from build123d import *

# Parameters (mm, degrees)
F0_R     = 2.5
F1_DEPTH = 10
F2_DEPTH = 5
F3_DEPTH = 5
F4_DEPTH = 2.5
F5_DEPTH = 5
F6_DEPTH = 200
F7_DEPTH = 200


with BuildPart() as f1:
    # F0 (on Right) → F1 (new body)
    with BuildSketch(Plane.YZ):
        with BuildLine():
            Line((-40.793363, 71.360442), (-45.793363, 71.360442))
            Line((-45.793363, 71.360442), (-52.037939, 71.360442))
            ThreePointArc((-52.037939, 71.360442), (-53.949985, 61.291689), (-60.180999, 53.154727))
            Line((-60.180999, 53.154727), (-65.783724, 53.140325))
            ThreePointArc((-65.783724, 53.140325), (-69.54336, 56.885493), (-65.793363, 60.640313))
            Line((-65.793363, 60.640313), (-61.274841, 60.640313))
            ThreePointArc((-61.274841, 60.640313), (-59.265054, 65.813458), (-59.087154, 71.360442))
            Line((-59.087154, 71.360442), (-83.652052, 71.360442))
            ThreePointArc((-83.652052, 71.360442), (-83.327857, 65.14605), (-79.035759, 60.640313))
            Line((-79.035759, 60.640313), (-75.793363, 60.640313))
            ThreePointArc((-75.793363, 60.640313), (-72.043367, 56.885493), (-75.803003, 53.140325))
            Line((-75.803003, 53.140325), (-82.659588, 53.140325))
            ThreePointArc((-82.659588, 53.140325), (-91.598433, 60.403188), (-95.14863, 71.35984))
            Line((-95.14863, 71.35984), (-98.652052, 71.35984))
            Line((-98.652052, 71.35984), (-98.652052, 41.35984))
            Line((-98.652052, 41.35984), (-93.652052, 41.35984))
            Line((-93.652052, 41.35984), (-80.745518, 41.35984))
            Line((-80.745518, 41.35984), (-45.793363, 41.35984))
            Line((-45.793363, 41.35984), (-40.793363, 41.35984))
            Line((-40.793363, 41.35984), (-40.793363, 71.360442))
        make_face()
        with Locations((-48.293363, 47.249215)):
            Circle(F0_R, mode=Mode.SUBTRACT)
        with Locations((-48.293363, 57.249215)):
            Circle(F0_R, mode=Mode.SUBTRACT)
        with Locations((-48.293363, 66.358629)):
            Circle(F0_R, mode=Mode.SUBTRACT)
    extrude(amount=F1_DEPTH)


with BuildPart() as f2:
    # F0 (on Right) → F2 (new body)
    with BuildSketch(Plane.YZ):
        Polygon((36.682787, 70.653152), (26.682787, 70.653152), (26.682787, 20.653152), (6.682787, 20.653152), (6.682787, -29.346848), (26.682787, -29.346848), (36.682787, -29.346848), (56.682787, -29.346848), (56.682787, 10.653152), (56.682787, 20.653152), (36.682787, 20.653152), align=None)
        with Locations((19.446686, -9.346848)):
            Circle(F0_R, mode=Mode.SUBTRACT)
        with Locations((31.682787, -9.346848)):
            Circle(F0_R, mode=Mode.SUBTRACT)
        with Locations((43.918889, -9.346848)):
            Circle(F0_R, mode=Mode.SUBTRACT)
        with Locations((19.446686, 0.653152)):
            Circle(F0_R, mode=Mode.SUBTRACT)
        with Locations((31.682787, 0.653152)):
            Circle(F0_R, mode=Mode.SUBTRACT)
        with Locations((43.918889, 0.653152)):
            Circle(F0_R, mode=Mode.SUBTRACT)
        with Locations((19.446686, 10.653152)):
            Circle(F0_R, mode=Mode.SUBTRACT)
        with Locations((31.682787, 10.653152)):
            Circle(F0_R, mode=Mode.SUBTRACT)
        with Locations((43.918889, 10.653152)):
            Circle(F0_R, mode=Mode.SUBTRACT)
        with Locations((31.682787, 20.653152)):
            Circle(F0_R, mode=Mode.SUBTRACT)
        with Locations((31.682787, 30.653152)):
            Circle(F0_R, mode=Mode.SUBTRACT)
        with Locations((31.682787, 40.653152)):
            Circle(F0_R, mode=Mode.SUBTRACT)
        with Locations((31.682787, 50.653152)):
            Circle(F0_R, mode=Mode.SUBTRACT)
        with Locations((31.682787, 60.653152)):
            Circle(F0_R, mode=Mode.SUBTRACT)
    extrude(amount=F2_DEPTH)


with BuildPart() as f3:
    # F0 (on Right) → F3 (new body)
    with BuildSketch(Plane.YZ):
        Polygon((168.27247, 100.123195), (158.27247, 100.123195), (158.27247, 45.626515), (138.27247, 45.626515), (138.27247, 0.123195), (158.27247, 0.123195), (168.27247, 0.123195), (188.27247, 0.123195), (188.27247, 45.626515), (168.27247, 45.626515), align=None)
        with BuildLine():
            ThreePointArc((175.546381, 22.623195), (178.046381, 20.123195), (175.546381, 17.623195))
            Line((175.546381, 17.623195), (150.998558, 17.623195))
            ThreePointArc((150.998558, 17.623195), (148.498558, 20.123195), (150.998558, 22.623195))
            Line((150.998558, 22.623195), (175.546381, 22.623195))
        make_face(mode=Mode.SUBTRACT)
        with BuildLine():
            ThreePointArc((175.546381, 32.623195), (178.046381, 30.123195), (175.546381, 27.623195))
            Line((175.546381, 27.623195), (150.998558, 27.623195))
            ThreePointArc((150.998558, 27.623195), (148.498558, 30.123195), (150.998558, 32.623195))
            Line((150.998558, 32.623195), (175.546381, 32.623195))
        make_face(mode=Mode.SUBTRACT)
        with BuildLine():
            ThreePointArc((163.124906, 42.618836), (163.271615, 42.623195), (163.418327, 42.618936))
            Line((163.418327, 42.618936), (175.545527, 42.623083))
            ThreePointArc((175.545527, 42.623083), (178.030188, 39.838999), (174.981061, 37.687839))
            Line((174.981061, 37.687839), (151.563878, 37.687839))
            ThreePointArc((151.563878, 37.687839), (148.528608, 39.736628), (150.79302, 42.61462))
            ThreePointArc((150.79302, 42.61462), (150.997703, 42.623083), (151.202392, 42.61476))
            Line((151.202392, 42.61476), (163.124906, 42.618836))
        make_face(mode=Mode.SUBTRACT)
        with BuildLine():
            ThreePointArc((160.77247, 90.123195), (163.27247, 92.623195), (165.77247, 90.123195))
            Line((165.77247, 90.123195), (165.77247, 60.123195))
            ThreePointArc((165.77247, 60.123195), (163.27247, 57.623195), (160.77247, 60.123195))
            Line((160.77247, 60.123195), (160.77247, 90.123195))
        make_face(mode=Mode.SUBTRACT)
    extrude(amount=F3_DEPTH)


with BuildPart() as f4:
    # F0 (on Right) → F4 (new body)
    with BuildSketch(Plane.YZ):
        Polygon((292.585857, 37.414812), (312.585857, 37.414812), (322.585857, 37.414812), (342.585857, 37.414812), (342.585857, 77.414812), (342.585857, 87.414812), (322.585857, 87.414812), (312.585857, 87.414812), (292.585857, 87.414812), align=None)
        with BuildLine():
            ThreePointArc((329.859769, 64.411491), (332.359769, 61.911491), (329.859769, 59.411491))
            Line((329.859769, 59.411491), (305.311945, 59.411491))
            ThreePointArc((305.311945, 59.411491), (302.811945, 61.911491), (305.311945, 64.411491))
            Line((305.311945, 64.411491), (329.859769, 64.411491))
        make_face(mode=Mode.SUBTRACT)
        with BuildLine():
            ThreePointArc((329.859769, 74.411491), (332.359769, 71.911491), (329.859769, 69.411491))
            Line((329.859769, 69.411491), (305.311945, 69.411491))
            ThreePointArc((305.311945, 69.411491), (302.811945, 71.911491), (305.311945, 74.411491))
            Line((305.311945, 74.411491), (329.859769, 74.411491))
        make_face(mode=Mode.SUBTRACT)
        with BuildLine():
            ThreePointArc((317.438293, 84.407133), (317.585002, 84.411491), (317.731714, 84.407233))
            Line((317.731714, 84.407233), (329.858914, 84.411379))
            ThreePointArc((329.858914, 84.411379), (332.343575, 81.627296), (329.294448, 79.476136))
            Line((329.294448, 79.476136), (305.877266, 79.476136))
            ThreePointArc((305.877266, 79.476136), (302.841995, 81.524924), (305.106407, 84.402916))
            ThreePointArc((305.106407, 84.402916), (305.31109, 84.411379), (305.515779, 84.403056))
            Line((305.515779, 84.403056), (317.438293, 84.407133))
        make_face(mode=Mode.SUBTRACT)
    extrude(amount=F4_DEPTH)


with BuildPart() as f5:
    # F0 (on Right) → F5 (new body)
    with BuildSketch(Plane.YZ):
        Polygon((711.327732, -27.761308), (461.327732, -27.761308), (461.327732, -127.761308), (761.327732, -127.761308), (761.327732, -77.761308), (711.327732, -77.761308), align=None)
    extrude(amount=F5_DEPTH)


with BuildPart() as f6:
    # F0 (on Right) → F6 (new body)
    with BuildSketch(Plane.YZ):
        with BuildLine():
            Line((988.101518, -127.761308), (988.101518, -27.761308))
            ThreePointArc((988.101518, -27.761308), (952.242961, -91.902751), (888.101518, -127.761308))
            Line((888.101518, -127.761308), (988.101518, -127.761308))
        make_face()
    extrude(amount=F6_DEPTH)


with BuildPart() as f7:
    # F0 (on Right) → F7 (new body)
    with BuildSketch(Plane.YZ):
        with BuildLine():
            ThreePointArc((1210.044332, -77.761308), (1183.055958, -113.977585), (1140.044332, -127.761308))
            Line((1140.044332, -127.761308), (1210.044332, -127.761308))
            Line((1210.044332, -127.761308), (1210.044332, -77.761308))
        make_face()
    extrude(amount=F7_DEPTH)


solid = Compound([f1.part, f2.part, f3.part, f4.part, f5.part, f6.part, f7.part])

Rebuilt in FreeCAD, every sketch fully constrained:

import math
import FreeCAD as App
import Part
import Sketcher

doc = App.newDocument("Part")
params = doc.addObject("Spreadsheet::Sheet", "Params")
for row, (alias, value) in enumerate([
    ("sketch1_diameter", "5 mm"),
    ("sketch1_height", "30 mm"),
    ("sketch1_radius", "3.75 mm"),
    ("pad1_length", "10 mm"),
    ("sketch2_diameter", "5 mm"),
    ("sketch2_width", "10 mm"),
    ("sketch2_width2", "20 mm"),
    ("pad2_length", "5 mm"),
    ("sketch3_radius", "2.5 mm"),
    ("sketch3_width", "10 mm"),
    ("sketch3_width2", "20 mm"),
    ("sketch3_height", "30 mm"),
    ("pad3_length", "5 mm"),
    ("sketch4_radius", "2.5 mm"),
    ("sketch4_width", "50 mm"),
    ("pad4_length", "2.5 mm"),
    ("sketch5_width", "250 mm"),
    ("sketch5_width2", "300 mm"),
    ("pad5_length", "5 mm"),
    ("sketch6_width", "100 mm"),
    ("pad6_length", "200 mm"),
    ("sketch7_radius", "74 mm"),
    ("sketch7_width", "70 mm"),
    ("pad7_length", "200 mm"),
], start=1):
    params.set(f"A{row}", alias)
    params.set(f"B{row}", "=" + value)
    params.setAlias(f"B{row}", alias)

body = doc.addObject("PartDesign::Body", "Body")

sketch1 = body.newObject("Sketcher::SketchObject", "Sketch")
sketch1.AttachmentSupport = (doc.getObject("YZ_Plane"), [""])
sketch1.MapMode = "FlatFace"
sketch1.addGeometry([
    Part.LineSegment(App.Vector(-40.793363, 71.360442, 0), App.Vector(-52.037939, 71.360442, 0)),
    Part.ArcOfCircle(Part.Circle(App.Vector(-74.21533, 70.355982, 0), App.Vector(0, 0, 1), 22.200127), math.radians(-50.78934), math.radians(2.593273)),
    Part.LineSegment(App.Vector(-60.180999, 53.154727, 0), App.Vector(-65.783724, 53.140325, 0)),
    Part.ArcOfCircle(Part.Circle(App.Vector(-65.793363, 56.890313, 0), App.Vector(0, 0, 1), 3.75), math.radians(90.000001), math.radians(270.147272)),
    Part.LineSegment(App.Vector(-65.793363, 60.640313, 0), App.Vector(-61.274841, 60.640313, 0)),
    Part.ArcOfCircle(Part.Circle(App.Vector(-75.406466, 69.107482, 0), App.Vector(0, 0, 1), 16.474094), math.radians(-30.928548), math.radians(7.860275)),
    Part.LineSegment(App.Vector(-59.087154, 71.360442, 0), App.Vector(-83.652052, 71.360442, 0)),
    Part.ArcOfCircle(Part.Circle(App.Vector(-75.095207, 68.691187, 0), App.Vector(0, 0, 1), 8.96351), math.radians(162.675008), math.radians(243.920267)),
    Part.LineSegment(App.Vector(-79.035759, 60.640313, 0), App.Vector(-75.793363, 60.640313, 0)),
    Part.ArcOfCircle(Part.Circle(App.Vector(-75.793364, 56.890313, 0), App.Vector(0, 0, 1), 3.75), math.radians(-90.147272), math.radians(89.999983)),
    Part.LineSegment(App.Vector(-75.803003, 53.140325, 0), App.Vector(-82.659588, 53.140325, 0)),
    Part.ArcOfCircle(Part.Circle(App.Vector(-74.850806, 71.883286, 0), App.Vector(0, 0, 1), 20.304572), math.radians(-178.522768), math.radians(-112.61782)),
    Part.LineSegment(App.Vector(-95.14863, 71.35984, 0), App.Vector(-98.652052, 71.35984, 0)),
    Part.LineSegment(App.Vector(-98.652052, 71.35984, 0), App.Vector(-98.652052, 41.35984, 0)),
    Part.LineSegment(App.Vector(-98.652052, 41.35984, 0), App.Vector(-40.793363, 41.35984, 0)),
    Part.LineSegment(App.Vector(-40.793363, 41.35984, 0), App.Vector(-40.793363, 71.360442, 0)),
    Part.Circle(App.Vector(-48.293363, 47.249215, 0), App.Vector(0, 0, 1), 2.5),
    Part.Circle(App.Vector(-48.293363, 57.249215, 0), App.Vector(0, 0, 1), 2.5),
    Part.Circle(App.Vector(-48.293363, 66.358629, 0), App.Vector(0, 0, 1), 2.5),
], False)
sketch1.addConstraint([
    Sketcher.Constraint("Coincident", 0, 2, 1, 2),
    Sketcher.Constraint("Coincident", 1, 1, 2, 1),
    Sketcher.Constraint("Tangent", 2, 2, 3, 2),
    Sketcher.Constraint("Tangent", 3, 1, 4, 1),
    Sketcher.Constraint("Coincident", 4, 2, 5, 1),
    Sketcher.Constraint("Coincident", 5, 2, 6, 1),
    Sketcher.Constraint("Coincident", 6, 2, 7, 1),
    Sketcher.Constraint("Coincident", 7, 2, 8, 1),
    Sketcher.Constraint("Tangent", 8, 2, 9, 2),
    Sketcher.Constraint("Coincident", 9, 1, 10, 1),
    Sketcher.Constraint("Coincident", 10, 2, 11, 2),
    Sketcher.Constraint("Coincident", 11, 1, 12, 1),
    Sketcher.Constraint("Coincident", 12, 2, 13, 1),
    Sketcher.Constraint("Coincident", 13, 2, 14, 1),
    Sketcher.Constraint("Coincident", 14, 2, 15, 1),
    Sketcher.Constraint("Coincident", 15, 2, 0, 1),
    Sketcher.Constraint("Horizontal", 0),
    Sketcher.Constraint("Horizontal", 4),
    Sketcher.Constraint("Horizontal", 6),
    Sketcher.Constraint("Horizontal", 8),
    Sketcher.Constraint("Horizontal", 10),
    Sketcher.Constraint("Horizontal", 12),
    Sketcher.Constraint("Vertical", 13),
    Sketcher.Constraint("Horizontal", 14),
    Sketcher.Constraint("Vertical", 15),
    Sketcher.Constraint("Equal", 3, 9),
    Sketcher.Constraint("Equal", 16, 17),
    Sketcher.Constraint("Equal", 17, 18),
    Sketcher.Constraint("Horizontal", 3, 3, 9, 3),
    Sketcher.Constraint("Horizontal", 0, 2, 5, 2),
    Sketcher.Constraint("Vertical", 16, 3, 17, 3),
    Sketcher.Constraint("Vertical", 17, 3, 18, 3),
    Sketcher.Constraint("Diameter", 16, 5.0),
    Sketcher.Constraint("DistanceY", 13, 2, 13, 1, 30.0),
    Sketcher.Constraint("Radius", 3, 3.75),
    Sketcher.Constraint("DistanceX", 9, 3, 3, 3, 10.000001),
    Sketcher.Constraint("DistanceY", 16, 3, 17, 3, 10.0),
    Sketcher.Constraint("DistanceX", 12, 2, 6, 2, 15.0),
    Sketcher.Constraint("DistanceX", 3, 3, 16, 3, 17.5),
    Sketcher.Constraint("DistanceX", 16, 3, 14, 2, 7.5),
    Sketcher.Constraint("Radius", 7, 8.96351),
    Sketcher.Constraint("DistanceX", 1, 1, -1, 1, 60.180999),
    Sketcher.Constraint("Radius", 1, 22.200127),
    Sketcher.Constraint("Radius", 5, 16.474094),
    Sketcher.Constraint("Radius", 11, 20.304572),
    Sketcher.Constraint("DistanceX", 4, 1, 4, 2, 4.518522),
    Sketcher.Constraint("DistanceX", 14, 1, 14, 2, 57.858689),
    Sketcher.Constraint("DistanceY", 5, 3, 1, 3, 1.2485),
    Sketcher.Constraint("DistanceX", 9, 3, 5, 3, 0.386899),
    Sketcher.Constraint("DistanceX", 7, 3, 11, 3, 0.244401),
    Sketcher.Constraint("DistanceY", 7, 3, 11, 3, 3.192099),
    Sketcher.Constraint("DistanceY", 2, 2, 1, 1, 0.014402),
    Sketcher.Constraint("DistanceY", 11, 1, 6, 2, 0.000602),
    Sketcher.Constraint("DistanceX", 0, 2, 0, 1, 11.244576),
    Sketcher.Constraint("DistanceX", 6, 2, 6, 1, 24.564898),
    Sketcher.Constraint("DistanceX", 8, 1, 8, 2, 3.242396),
    Sketcher.Constraint("DistanceX", 10, 2, 10, 1, 6.856585),
    Sketcher.Constraint("DistanceY", -1, 1, 1, 3, 70.355982),
    Sketcher.Constraint("DistanceY", -1, 1, 18, 3, 66.358629),
    Sketcher.Constraint("DistanceY", 16, 3, 7, 3, 21.441972),
])
sketch1.setExpression("Constraints[32]", "Params.sketch1_diameter")
sketch1.setExpression("Constraints[33]", "Params.sketch1_height")
sketch1.setExpression("Constraints[34]", "Params.sketch1_radius")
pad1 = body.newObject("PartDesign::Pad", "Pad")
pad1.Profile = sketch1
pad1.setExpression("Length", "Params.pad1_length")
body2 = doc.addObject("PartDesign::Body", "Body001")

sketch2 = body2.newObject("Sketcher::SketchObject", "Sketch001")
sketch2.AttachmentSupport = (doc.getObject("YZ_Plane001"), [""])
sketch2.MapMode = "FlatFace"
sketch2.addGeometry([
    Part.LineSegment(App.Vector(36.682787, 70.653152, 0), App.Vector(26.682787, 70.653152, 0)),
    Part.LineSegment(App.Vector(26.682787, 70.653152, 0), App.Vector(26.682787, 20.653152, 0)),
    Part.LineSegment(App.Vector(26.682787, 20.653152, 0), App.Vector(6.682787, 20.653152, 0)),
    Part.LineSegment(App.Vector(6.682787, 20.653152, 0), App.Vector(6.682787, -29.346848, 0)),
    Part.LineSegment(App.Vector(6.682787, -29.346848, 0), App.Vector(56.682787, -29.346848, 0)),
    Part.LineSegment(App.Vector(56.682787, -29.346848, 0), App.Vector(56.682787, 20.653152, 0)),
    Part.LineSegment(App.Vector(56.682787, 20.653152, 0), App.Vector(36.682787, 20.653152, 0)),
    Part.LineSegment(App.Vector(36.682787, 20.653152, 0), App.Vector(36.682787, 70.653152, 0)),
    Part.Circle(App.Vector(19.446686, -9.346848, 0), App.Vector(0, 0, 1), 2.5),
    Part.Circle(App.Vector(19.446686, 0.653152, 0), App.Vector(0, 0, 1), 2.5),
    Part.Circle(App.Vector(31.682787, -9.346848, 0), App.Vector(0, 0, 1), 2.5),
    Part.Circle(App.Vector(31.682787, 0.653152, 0), App.Vector(0, 0, 1), 2.5),
    Part.Circle(App.Vector(19.446686, 10.653152, 0), App.Vector(0, 0, 1), 2.5),
    Part.Circle(App.Vector(31.682787, 10.653152, 0), App.Vector(0, 0, 1), 2.5),
    Part.Circle(App.Vector(31.682787, 20.653152, 0), App.Vector(0, 0, 1), 2.5),
    Part.Circle(App.Vector(43.918889, -9.346848, 0), App.Vector(0, 0, 1), 2.5),
    Part.Circle(App.Vector(43.918889, 0.653152, 0), App.Vector(0, 0, 1), 2.5),
    Part.Circle(App.Vector(43.918889, 10.653152, 0), App.Vector(0, 0, 1), 2.5),
    Part.Circle(App.Vector(31.682787, 30.653152, 0), App.Vector(0, 0, 1), 2.5),
    Part.Circle(App.Vector(31.682787, 40.653152, 0), App.Vector(0, 0, 1), 2.5),
    Part.Circle(App.Vector(31.682787, 50.653152, 0), App.Vector(0, 0, 1), 2.5),
    Part.Circle(App.Vector(31.682787, 60.653152, 0), App.Vector(0, 0, 1), 2.5),
], False)
sketch2.addConstraint([
    Sketcher.Constraint("Coincident", 0, 2, 1, 1),
    Sketcher.Constraint("Coincident", 1, 2, 2, 1),
    Sketcher.Constraint("Coincident", 2, 2, 3, 1),
    Sketcher.Constraint("Coincident", 3, 2, 4, 1),
    Sketcher.Constraint("Coincident", 4, 2, 5, 1),
    Sketcher.Constraint("Coincident", 5, 2, 6, 1),
    Sketcher.Constraint("Coincident", 6, 2, 7, 1),
    Sketcher.Constraint("Coincident", 7, 2, 0, 1),
    Sketcher.Constraint("Horizontal", 0),
    Sketcher.Constraint("Vertical", 1),
    Sketcher.Constraint("Horizontal", 2),
    Sketcher.Constraint("Vertical", 3),
    Sketcher.Constraint("Horizontal", 4),
    Sketcher.Constraint("Vertical", 5),
    Sketcher.Constraint("Horizontal", 6),
    Sketcher.Constraint("Vertical", 7),
    Sketcher.Constraint("Equal", 8, 9),
    Sketcher.Constraint("Equal", 9, 10),
    Sketcher.Constraint("Equal", 10, 11),
    Sketcher.Constraint("Equal", 11, 12),
    Sketcher.Constraint("Equal", 12, 13),
    Sketcher.Constraint("Equal", 13, 14),
    Sketcher.Constraint("Equal", 14, 15),
    Sketcher.Constraint("Equal", 15, 16),
    Sketcher.Constraint("Equal", 16, 17),
    Sketcher.Constraint("Equal", 17, 18),
    Sketcher.Constraint("Equal", 18, 19),
    Sketcher.Constraint("Equal", 19, 20),
    Sketcher.Constraint("Equal", 20, 21),
    Sketcher.Constraint("Horizontal", 8, 3, 10, 3),
    Sketcher.Constraint("Horizontal", 9, 3, 11, 3),
    Sketcher.Constraint("Horizontal", 12, 3, 13, 3),
    Sketcher.Constraint("Horizontal", 10, 3, 15, 3),
    Sketcher.Constraint("Horizontal", 11, 3, 16, 3),
    Sketcher.Constraint("Horizontal", 13, 3, 17, 3),
    Sketcher.Constraint("Horizontal", 14, 3, 1, 2),
    Sketcher.Constraint("Horizontal", 2, 2, 5, 2),
    Sketcher.Constraint("Vertical", 8, 3, 9, 3),
    Sketcher.Constraint("Vertical", 10, 3, 11, 3),
    Sketcher.Constraint("Vertical", 9, 3, 12, 3),
    Sketcher.Constraint("Vertical", 11, 3, 13, 3),
    Sketcher.Constraint("Vertical", 13, 3, 14, 3),
    Sketcher.Constraint("Vertical", 15, 3, 16, 3),
    Sketcher.Constraint("Vertical", 16, 3, 17, 3),
    Sketcher.Constraint("Vertical", 14, 3, 18, 3),
    Sketcher.Constraint("Vertical", 18, 3, 19, 3),
    Sketcher.Constraint("Vertical", 19, 3, 20, 3),
    Sketcher.Constraint("Vertical", 20, 3, 21, 3),
    Sketcher.Constraint("Equal", 2, 6),
    Sketcher.Constraint("Equal", 4, 1),
    Sketcher.Constraint("Equal", 1, 3),
    Sketcher.Constraint("Diameter", 8, 5.0),
    Sketcher.Constraint("DistanceX", 0, 2, 0, 1, 10.0),
    Sketcher.Constraint("DistanceX", 2, 2, 2, 1, 20.0),
    Sketcher.Constraint("DistanceY", 8, 3, 9, 3, 10.0),
    Sketcher.Constraint("DistanceY", 9, 3, 12, 3, 10.0),
    Sketcher.Constraint("DistanceY", 13, 3, 14, 3, 10.0),
    Sketcher.Constraint("DistanceY", 14, 3, 18, 3, 10.0),
    Sketcher.Constraint("DistanceY", 18, 3, 19, 3, 10.0),
    Sketcher.Constraint("DistanceY", 19, 3, 20, 3, 10.0),
    Sketcher.Constraint("DistanceY", 20, 3, 21, 3, 10.0),
    Sketcher.Constraint("DistanceX", 0, 2, 21, 3, 5.0),
    Sketcher.Constraint("DistanceX", 8, 3, 10, 3, 12.236101),
    Sketcher.Constraint("DistanceX", 10, 3, 15, 3, 12.236102),
    Sketcher.Constraint("DistanceY", -1, 1, 9, 3, 0.653152),
    Sketcher.Constraint("DistanceX", -1, 1, 15, 3, 43.918889),
])
sketch2.setExpression("Constraints[51]", "Params.sketch2_diameter")
sketch2.setExpression("Constraints[52]", "Params.sketch2_width")
sketch2.setExpression("Constraints[53]", "Params.sketch2_width2")
pad2 = body2.newObject("PartDesign::Pad", "Pad001")
pad2.Profile = sketch2
pad2.setExpression("Length", "Params.pad2_length")
body3 = doc.addObject("PartDesign::Body", "Body002")

sketch3 = body3.newObject("Sketcher::SketchObject", "Sketch002")
sketch3.AttachmentSupport = (doc.getObject("YZ_Plane002"), [""])
sketch3.MapMode = "FlatFace"
sketch3.addGeometry([
    Part.LineSegment(App.Vector(168.27247, 100.123195, 0), App.Vector(158.27247, 100.123195, 0)),
    Part.LineSegment(App.Vector(158.27247, 100.123195, 0), App.Vector(158.27247, 45.626515, 0)),
    Part.LineSegment(App.Vector(158.27247, 45.626515, 0), App.Vector(138.27247, 45.626515, 0)),
    Part.LineSegment(App.Vector(138.27247, 45.626515, 0), App.Vector(138.27247, 0.123195, 0)),
    Part.LineSegment(App.Vector(138.27247, 0.123195, 0), App.Vector(188.27247, 0.123195, 0)),
    Part.LineSegment(App.Vector(188.27247, 0.123195, 0), App.Vector(188.27247, 45.626515, 0)),
    Part.LineSegment(App.Vector(188.27247, 45.626515, 0), App.Vector(168.27247, 45.626515, 0)),
    Part.LineSegment(App.Vector(168.27247, 45.626515, 0), App.Vector(168.27247, 100.123195, 0)),
    Part.LineSegment(App.Vector(150.998558, 22.623195, 0), App.Vector(175.546381, 22.623195, 0)),
    Part.ArcOfCircle(Part.Circle(App.Vector(175.546381, 20.123195, 0), App.Vector(0, 0, 1), 2.5), math.radians(-90), math.radians(90)),
    Part.LineSegment(App.Vector(175.546381, 17.623195, 0), App.Vector(150.998558, 17.623195, 0)),
    Part.ArcOfCircle(Part.Circle(App.Vector(150.998558, 20.123195, 0), App.Vector(0, 0, 1), 2.5), math.radians(90), math.radians(270)),
    Part.LineSegment(App.Vector(150.998558, 32.623195, 0), App.Vector(175.546381, 32.623195, 0)),
    Part.ArcOfCircle(Part.Circle(App.Vector(175.546381, 30.123195, 0), App.Vector(0, 0, 1), 2.5), math.radians(-90), math.radians(90)),
    Part.LineSegment(App.Vector(175.546381, 27.623195, 0), App.Vector(150.998558, 27.623195, 0)),
    Part.ArcOfCircle(Part.Circle(App.Vector(150.998558, 30.123195, 0), App.Vector(0, 0, 1), 2.5), math.radians(90), math.radians(270)),
    Part.LineSegment(App.Vector(151.202392, 42.61476, 0), App.Vector(163.124906, 42.618836, 0)),
    Part.ArcOfCircle(Part.Circle(App.Vector(163.272467, 40.123481, 0), App.Vector(0, 0, 1), 2.499714), math.radians(86.654852), math.radians(93.384202)),
    Part.LineSegment(App.Vector(163.418327, 42.618936, 0), App.Vector(175.545527, 42.623083, 0)),
    Part.ArcOfCircle(Part.Circle(App.Vector(175.546381, 40.123083, 0), App.Vector(0, 0, 1), 2.5), math.radians(-103.069219), math.radians(90.019575)),
    Part.LineSegment(App.Vector(174.981061, 37.687839, 0), App.Vector(151.563878, 37.687839, 0)),
    Part.ArcOfCircle(Part.Circle(App.Vector(150.998558, 40.123083, 0), App.Vector(0, 0, 1), 2.5), math.radians(94.715909), math.radians(283.069214)),
    Part.ArcOfCircle(Part.Circle(App.Vector(150.998558, 40.122976, 0), App.Vector(0, 0, 1), 2.500107), math.radians(85.323482), math.radians(94.715707)),
    Part.LineSegment(App.Vector(160.77247, 60.123195, 0), App.Vector(160.77247, 90.123195, 0)),
    Part.ArcOfCircle(Part.Circle(App.Vector(163.27247, 90.123195, 0), App.Vector(0, 0, 1), 2.5), math.radians(0), math.radians(180)),
    Part.LineSegment(App.Vector(165.77247, 90.123195, 0), App.Vector(165.77247, 60.123195, 0)),
    Part.ArcOfCircle(Part.Circle(App.Vector(163.27247, 60.123195, 0), App.Vector(0, 0, 1), 2.5), math.radians(180), math.radians(360)),
], False)
sketch3.addConstraint([
    Sketcher.Constraint("Coincident", 0, 2, 1, 1),
    Sketcher.Constraint("Coincident", 1, 2, 2, 1),
    Sketcher.Constraint("Coincident", 2, 2, 3, 1),
    Sketcher.Constraint("Coincident", 3, 2, 4, 1),
    Sketcher.Constraint("Coincident", 4, 2, 5, 1),
    Sketcher.Constraint("Coincident", 5, 2, 6, 1),
    Sketcher.Constraint("Coincident", 6, 2, 7, 1),
    Sketcher.Constraint("Coincident", 7, 2, 0, 1),
    Sketcher.Constraint("Tangent", 8, 2, 9, 2),
    Sketcher.Constraint("Tangent", 9, 1, 10, 1),
    Sketcher.Constraint("Tangent", 10, 2, 11, 2),
    Sketcher.Constraint("Tangent", 11, 1, 8, 1),
    Sketcher.Constraint("Tangent", 12, 2, 13, 2),
    Sketcher.Constraint("Tangent", 13, 1, 14, 1),
    Sketcher.Constraint("Tangent", 14, 2, 15, 2),
    Sketcher.Constraint("Tangent", 15, 1, 12, 1),
    Sketcher.Constraint("Coincident", 16, 2, 17, 2),
    Sketcher.Constraint("Coincident", 17, 1, 18, 1),
    Sketcher.Constraint("Tangent", 18, 2, 19, 2),
    Sketcher.Constraint("Coincident", 19, 1, 20, 1),
    Sketcher.Constraint("Coincident", 20, 2, 21, 2),
    Sketcher.Constraint("Coincident", 21, 1, 22, 2),
    Sketcher.Constraint("Coincident", 22, 1, 16, 1),
    Sketcher.Constraint("Tangent", 23, 2, 24, 2),
    Sketcher.Constraint("Tangent", 24, 1, 25, 1),
    Sketcher.Constraint("Tangent", 25, 2, 26, 2),
    Sketcher.Constraint("Tangent", 26, 1, 23, 1),
    Sketcher.Constraint("Horizontal", 0),
    Sketcher.Constraint("Vertical", 1),
    Sketcher.Constraint("Horizontal", 2),
    Sketcher.Constraint("Vertical", 3),
    Sketcher.Constraint("Horizontal", 4),
    Sketcher.Constraint("Vertical", 5),
    Sketcher.Constraint("Horizontal", 6),
    Sketcher.Constraint("Vertical", 7),
    Sketcher.Constraint("Horizontal", 8),
    Sketcher.Constraint("Horizontal", 10),
    Sketcher.Constraint("Horizontal", 12),
    Sketcher.Constraint("Horizontal", 14),
    Sketcher.Constraint("Horizontal", 20),
    Sketcher.Constraint("Vertical", 23),
    Sketcher.Constraint("Vertical", 25),
    Sketcher.Constraint("Equal", 11, 13),
    Sketcher.Constraint("Equal", 15, 19),
    Sketcher.Constraint("Equal", 19, 21),
    Sketcher.Constraint("Equal", 21, 24),
    Sketcher.Constraint("Parallel", 16, 18),
    Sketcher.Constraint("Horizontal", 19, 3, 21, 3),
    Sketcher.Constraint("Horizontal", 2, 2, 5, 2),
    Sketcher.Constraint("Vertical", 9, 3, 13, 3),
    Sketcher.Constraint("Vertical", 11, 3, 15, 3),
    Sketcher.Constraint("Vertical", 13, 3, 19, 3),
    Sketcher.Constraint("Vertical", 15, 3, 21, 3),
    Sketcher.Constraint("Vertical", 21, 3, 22, 3),
    Sketcher.Constraint("Equal", 2, 6),
    Sketcher.Constraint("Radius", 9, 2.5),
    Sketcher.Constraint("DistanceX", 0, 2, 0, 1, 10.0),
    Sketcher.Constraint("DistanceX", 2, 2, 2, 1, 20.0),
    Sketcher.Constraint("DistanceY", 23, 1, 23, 2, 30.0),
    Sketcher.Constraint("DistanceY", 9, 3, 13, 3, 10.0),
    Sketcher.Constraint("DistanceY", 13, 3, 24, 3, 60.0),
    Sketcher.Constraint("DistanceX", 0, 2, 24, 3, 5.0),
    Sketcher.Constraint("DistanceY", 24, 3, 0, 2, 10.0),
    Sketcher.Constraint("DistanceY", 3, 2, 11, 3, 20.0),
    Sketcher.Constraint("Radius", 17, 2.499714),
    Sketcher.Constraint("Radius", 22, 2.500107),
    Sketcher.Constraint("Distance", 18, 12.127201),
    Sketcher.Constraint("DistanceY", 1, 2, 1, 1, 54.49668),
    Sketcher.Constraint("DistanceY", 16, 2, 17, 1, 0.0001),
    Sketcher.Constraint("DistanceX", 8, 1, 8, 2, 24.547823),
    Sketcher.Constraint("DistanceX", 20, 2, 20, 1, 23.417183),
    Sketcher.Constraint("DistanceX", -1, 1, 9, 3, 175.546381),
    Sketcher.Constraint("DistanceY", -1, 1, 17, 3, 40.123481),
    Sketcher.Constraint("DistanceX", -1, 1, 24, 3, 163.27247),
    Sketcher.Constraint("DistanceY", -1, 1, 19, 1, 37.687839),
    Sketcher.Constraint("DistanceX", -1, 1, 21, 1, 150.79302),
    Sketcher.Constraint("DistanceY", -1, 1, 22, 1, 42.61476),
    Sketcher.Constraint("DistanceY", 13, 3, 19, 3, 9.999888),
])
sketch3.setExpression("Constraints[55]", "Params.sketch3_radius")
sketch3.setExpression("Constraints[56]", "Params.sketch3_width")
sketch3.setExpression("Constraints[57]", "Params.sketch3_width2")
sketch3.setExpression("Constraints[58]", "Params.sketch3_height")
pad3 = body3.newObject("PartDesign::Pad", "Pad002")
pad3.Profile = sketch3
pad3.setExpression("Length", "Params.pad3_length")
body4 = doc.addObject("PartDesign::Body", "Body003")

sketch4 = body4.newObject("Sketcher::SketchObject", "Sketch003")
sketch4.AttachmentSupport = (doc.getObject("YZ_Plane003"), [""])
sketch4.MapMode = "FlatFace"
sketch4.addGeometry([
    Part.LineSegment(App.Vector(292.585857, 37.414812, 0), App.Vector(342.585857, 37.414812, 0)),
    Part.LineSegment(App.Vector(342.585857, 37.414812, 0), App.Vector(342.585857, 87.414812, 0)),
    Part.LineSegment(App.Vector(342.585857, 87.414812, 0), App.Vector(292.585857, 87.414812, 0)),
    Part.LineSegment(App.Vector(292.585857, 87.414812, 0), App.Vector(292.585857, 37.414812, 0)),
    Part.LineSegment(App.Vector(305.311945, 64.411491, 0), App.Vector(329.859769, 64.411491, 0)),
    Part.ArcOfCircle(Part.Circle(App.Vector(329.859769, 61.911491, 0), App.Vector(0, 0, 1), 2.5), math.radians(-90), math.radians(90)),
    Part.LineSegment(App.Vector(329.859769, 59.411491, 0), App.Vector(305.311945, 59.411491, 0)),
    Part.ArcOfCircle(Part.Circle(App.Vector(305.311945, 61.911491, 0), App.Vector(0, 0, 1), 2.5), math.radians(90), math.radians(270)),
    Part.LineSegment(App.Vector(305.311945, 74.411491, 0), App.Vector(329.859769, 74.411491, 0)),
    Part.ArcOfCircle(Part.Circle(App.Vector(329.859769, 71.911491, 0), App.Vector(0, 0, 1), 2.5), math.radians(-90), math.radians(90)),
    Part.LineSegment(App.Vector(329.859769, 69.411491, 0), App.Vector(305.311945, 69.411491, 0)),
    Part.ArcOfCircle(Part.Circle(App.Vector(305.311945, 71.911491, 0), App.Vector(0, 0, 1), 2.5), math.radians(90), math.radians(270)),
    Part.LineSegment(App.Vector(305.515779, 84.403056, 0), App.Vector(317.438293, 84.407133, 0)),
    Part.ArcOfCircle(Part.Circle(App.Vector(317.585854, 81.911197, 0), App.Vector(0, 0, 1), 2.500294), math.radians(86.655632), math.radians(93.383421)),
    Part.LineSegment(App.Vector(317.731714, 84.407233, 0), App.Vector(329.858914, 84.411379, 0)),
    Part.ArcOfCircle(Part.Circle(App.Vector(329.859768, 81.91138, 0), App.Vector(0, 0, 1), 2.5), math.radians(-103.069231), math.radians(90.019584)),
    Part.LineSegment(App.Vector(329.294448, 79.476136, 0), App.Vector(305.877266, 79.476136, 0)),
    Part.ArcOfCircle(Part.Circle(App.Vector(305.311945, 81.91138, 0), App.Vector(0, 0, 1), 2.5), math.radians(94.7159), math.radians(283.069248)),
    Part.ArcOfCircle(Part.Circle(App.Vector(305.311945, 81.911272, 0), App.Vector(0, 0, 1), 2.500107), math.radians(85.323482), math.radians(94.715707)),
], False)
sketch4.addConstraint([
    Sketcher.Constraint("Coincident", 0, 2, 1, 1),
    Sketcher.Constraint("Coincident", 1, 2, 2, 1),
    Sketcher.Constraint("Coincident", 2, 2, 3, 1),
    Sketcher.Constraint("Coincident", 3, 2, 0, 1),
    Sketcher.Constraint("Tangent", 4, 2, 5, 2),
    Sketcher.Constraint("Tangent", 5, 1, 6, 1),
    Sketcher.Constraint("Tangent", 6, 2, 7, 2),
    Sketcher.Constraint("Tangent", 7, 1, 4, 1),
    Sketcher.Constraint("Tangent", 8, 2, 9, 2),
    Sketcher.Constraint("Tangent", 9, 1, 10, 1),
    Sketcher.Constraint("Tangent", 10, 2, 11, 2),
    Sketcher.Constraint("Tangent", 11, 1, 8, 1),
    Sketcher.Constraint("Coincident", 12, 2, 13, 2),
    Sketcher.Constraint("Coincident", 13, 1, 14, 1),
    Sketcher.Constraint("Tangent", 14, 2, 15, 2),
    Sketcher.Constraint("Coincident", 15, 1, 16, 1),
    Sketcher.Constraint("Coincident", 16, 2, 17, 2),
    Sketcher.Constraint("Coincident", 17, 1, 18, 2),
    Sketcher.Constraint("Coincident", 18, 1, 12, 1),
    Sketcher.Constraint("Horizontal", 0),
    Sketcher.Constraint("Vertical", 1),
    Sketcher.Constraint("Horizontal", 2),
    Sketcher.Constraint("Vertical", 3),
    Sketcher.Constraint("Horizontal", 4),
    Sketcher.Constraint("Horizontal", 6),
    Sketcher.Constraint("Horizontal", 8),
    Sketcher.Constraint("Horizontal", 10),
    Sketcher.Constraint("Horizontal", 16),
    Sketcher.Constraint("Equal", 7, 9),
    Sketcher.Constraint("Equal", 11, 15),
    Sketcher.Constraint("Equal", 15, 17),
    Sketcher.Constraint("Parallel", 12, 14),
    Sketcher.Constraint("Horizontal", 15, 3, 17, 3),
    Sketcher.Constraint("Vertical", 5, 3, 9, 3),
    Sketcher.Constraint("Vertical", 7, 3, 11, 3),
    Sketcher.Constraint("Vertical", 9, 3, 15, 3),
    Sketcher.Constraint("Vertical", 11, 3, 17, 3),
    Sketcher.Constraint("Vertical", 17, 3, 18, 3),
    Sketcher.Constraint("Equal", 2, 1),
    Sketcher.Constraint("Radius", 5, 2.5),
    Sketcher.Constraint("DistanceX", 0, 1, 0, 2, 50.0),
    Sketcher.Constraint("DistanceY", 5, 3, 9, 3, 10.0),
    Sketcher.Constraint("Radius", 13, 2.500294),
    Sketcher.Constraint("Radius", 18, 2.500107),
    Sketcher.Constraint("Distance", 14, 12.127201),
    Sketcher.Constraint("DistanceX", 16, 2, 16, 1, 23.417182),
    Sketcher.Constraint("DistanceX", 4, 1, 4, 2, 24.547824),
    Sketcher.Constraint("DistanceX", -1, 1, 5, 3, 329.859769),
    Sketcher.Constraint("DistanceY", -1, 1, 5, 3, 61.911491),
    Sketcher.Constraint("DistanceY", -1, 1, 15, 3, 81.91138),
    Sketcher.Constraint("DistanceY", -1, 1, 0, 2, 37.414812),
    Sketcher.Constraint("DistanceX", -1, 1, 18, 1, 305.515779),
    Sketcher.Constraint("DistanceX", 11, 3, 13, 3, 12.273909),
    Sketcher.Constraint("DistanceX", 5, 3, 0, 2, 12.726088),
    Sketcher.Constraint("DistanceX", 12, 2, 13, 3, 0.147561),
    Sketcher.Constraint("DistanceX", 17, 1, 18, 3, 0.205538),
])
sketch4.setExpression("Constraints[39]", "Params.sketch4_radius")
sketch4.setExpression("Constraints[40]", "Params.sketch4_width")
pad4 = body4.newObject("PartDesign::Pad", "Pad003")
pad4.Profile = sketch4
pad4.setExpression("Length", "Params.pad4_length")
body5 = doc.addObject("PartDesign::Body", "Body004")

sketch5 = body5.newObject("Sketcher::SketchObject", "Sketch004")
sketch5.AttachmentSupport = (doc.getObject("YZ_Plane004"), [""])
sketch5.MapMode = "FlatFace"
sketch5.addGeometry([
    Part.LineSegment(App.Vector(711.327732, -27.761308, 0), App.Vector(461.327732, -27.761308, 0)),
    Part.LineSegment(App.Vector(461.327732, -27.761308, 0), App.Vector(461.327732, -127.761308, 0)),
    Part.LineSegment(App.Vector(461.327732, -127.761308, 0), App.Vector(761.327732, -127.761308, 0)),
    Part.LineSegment(App.Vector(761.327732, -127.761308, 0), App.Vector(761.327732, -77.761308, 0)),
    Part.LineSegment(App.Vector(761.327732, -77.761308, 0), App.Vector(711.327732, -77.761308, 0)),
    Part.LineSegment(App.Vector(711.327732, -77.761308, 0), App.Vector(711.327732, -27.761308, 0)),
], False)
sketch5.addConstraint([
    Sketcher.Constraint("Coincident", 0, 2, 1, 1),
    Sketcher.Constraint("Coincident", 1, 2, 2, 1),
    Sketcher.Constraint("Coincident", 2, 2, 3, 1),
    Sketcher.Constraint("Coincident", 3, 2, 4, 1),
    Sketcher.Constraint("Coincident", 4, 2, 5, 1),
    Sketcher.Constraint("Coincident", 5, 2, 0, 1),
    Sketcher.Constraint("Horizontal", 0),
    Sketcher.Constraint("Vertical", 1),
    Sketcher.Constraint("Horizontal", 2),
    Sketcher.Constraint("Vertical", 3),
    Sketcher.Constraint("Horizontal", 4),
    Sketcher.Constraint("Vertical", 5),
    Sketcher.Constraint("Equal", 4, 3),
    Sketcher.Constraint("Equal", 3, 5),
    Sketcher.Constraint("DistanceX", 0, 2, 0, 1, 250.0),
    Sketcher.Constraint("DistanceX", 2, 1, 2, 2, 300.0),
    Sketcher.Constraint("DistanceY", 1, 2, -1, 1, 127.761308),
    Sketcher.Constraint("DistanceX", -1, 1, 2, 2, 761.327732),
])
sketch5.setExpression("Constraints[14]", "Params.sketch5_width")
sketch5.setExpression("Constraints[15]", "Params.sketch5_width2")
pad5 = body5.newObject("PartDesign::Pad", "Pad004")
pad5.Profile = sketch5
pad5.setExpression("Length", "Params.pad5_length")
body6 = doc.addObject("PartDesign::Body", "Body005")

sketch6 = body6.newObject("Sketcher::SketchObject", "Sketch005")
sketch6.AttachmentSupport = (doc.getObject("YZ_Plane005"), [""])
sketch6.MapMode = "FlatFace"
sketch6.addGeometry([
    Part.LineSegment(App.Vector(988.101518, -127.761308, 0), App.Vector(988.101518, -27.761308, 0)),
    Part.ArcOfCircle(Part.Circle(App.Vector(856.779563, 3.560647, 0), App.Vector(0, 0, 1), 135.005633), math.radians(-76.584868), math.radians(-13.415132)),
    Part.LineSegment(App.Vector(888.101518, -127.761308, 0), App.Vector(988.101518, -127.761308, 0)),
], False)
sketch6.addConstraint([
    Sketcher.Constraint("Coincident", 0, 2, 1, 2),
    Sketcher.Constraint("Coincident", 1, 1, 2, 1),
    Sketcher.Constraint("Coincident", 2, 2, 0, 1),
    Sketcher.Constraint("Vertical", 0),
    Sketcher.Constraint("Horizontal", 2),
    Sketcher.Constraint("Equal", 2, 0),
    Sketcher.Constraint("DistanceX", 2, 1, 2, 2, 100.0),
    Sketcher.Constraint("Radius", 1, 135.005633),
    Sketcher.Constraint("DistanceX", -1, 1, 0, 2, 988.101518),
    Sketcher.Constraint("DistanceY", 2, 2, -1, 1, 127.761308),
])
sketch6.setExpression("Constraints[6]", "Params.sketch6_width")
pad6 = body6.newObject("PartDesign::Pad", "Pad005")
pad6.Profile = sketch6
pad6.setExpression("Length", "Params.pad6_length")
body7 = doc.addObject("PartDesign::Body", "Body006")

sketch7 = body7.newObject("Sketcher::SketchObject", "Sketch006")
sketch7.AttachmentSupport = (doc.getObject("YZ_Plane006"), [""])
sketch7.MapMode = "FlatFace"
sketch7.addGeometry([
    Part.ArcOfCircle(Part.Circle(App.Vector(1140.044332, -53.761308, 0), App.Vector(0, 0, 1), 74), math.radians(-90), math.radians(-18.924645)),
    Part.LineSegment(App.Vector(1140.044332, -127.761308, 0), App.Vector(1210.044332, -127.761308, 0)),
    Part.LineSegment(App.Vector(1210.044332, -127.761308, 0), App.Vector(1210.044332, -77.761308, 0)),
], False)
sketch7.addConstraint([
    Sketcher.Constraint("Tangent", 0, 1, 1, 1),
    Sketcher.Constraint("Coincident", 1, 2, 2, 1),
    Sketcher.Constraint("Coincident", 2, 2, 0, 2),
    Sketcher.Constraint("Horizontal", 1),
    Sketcher.Constraint("Vertical", 2),
    Sketcher.Constraint("Radius", 0, 74.0),
    Sketcher.Constraint("DistanceX", 1, 1, 1, 2, 70.0),
    Sketcher.Constraint("DistanceX", -1, 1, 0, 3, 1140.044332),
    Sketcher.Constraint("DistanceY", 0, 1, -1, 1, 127.761308),
])
sketch7.setExpression("Constraints[5]", "Params.sketch7_radius")
sketch7.setExpression("Constraints[6]", "Params.sketch7_width")
pad7 = body7.newObject("PartDesign::Pad", "Pad006")
pad7.Profile = sketch7
pad7.setExpression("Length", "Params.pad7_length")

doc.recompute()
